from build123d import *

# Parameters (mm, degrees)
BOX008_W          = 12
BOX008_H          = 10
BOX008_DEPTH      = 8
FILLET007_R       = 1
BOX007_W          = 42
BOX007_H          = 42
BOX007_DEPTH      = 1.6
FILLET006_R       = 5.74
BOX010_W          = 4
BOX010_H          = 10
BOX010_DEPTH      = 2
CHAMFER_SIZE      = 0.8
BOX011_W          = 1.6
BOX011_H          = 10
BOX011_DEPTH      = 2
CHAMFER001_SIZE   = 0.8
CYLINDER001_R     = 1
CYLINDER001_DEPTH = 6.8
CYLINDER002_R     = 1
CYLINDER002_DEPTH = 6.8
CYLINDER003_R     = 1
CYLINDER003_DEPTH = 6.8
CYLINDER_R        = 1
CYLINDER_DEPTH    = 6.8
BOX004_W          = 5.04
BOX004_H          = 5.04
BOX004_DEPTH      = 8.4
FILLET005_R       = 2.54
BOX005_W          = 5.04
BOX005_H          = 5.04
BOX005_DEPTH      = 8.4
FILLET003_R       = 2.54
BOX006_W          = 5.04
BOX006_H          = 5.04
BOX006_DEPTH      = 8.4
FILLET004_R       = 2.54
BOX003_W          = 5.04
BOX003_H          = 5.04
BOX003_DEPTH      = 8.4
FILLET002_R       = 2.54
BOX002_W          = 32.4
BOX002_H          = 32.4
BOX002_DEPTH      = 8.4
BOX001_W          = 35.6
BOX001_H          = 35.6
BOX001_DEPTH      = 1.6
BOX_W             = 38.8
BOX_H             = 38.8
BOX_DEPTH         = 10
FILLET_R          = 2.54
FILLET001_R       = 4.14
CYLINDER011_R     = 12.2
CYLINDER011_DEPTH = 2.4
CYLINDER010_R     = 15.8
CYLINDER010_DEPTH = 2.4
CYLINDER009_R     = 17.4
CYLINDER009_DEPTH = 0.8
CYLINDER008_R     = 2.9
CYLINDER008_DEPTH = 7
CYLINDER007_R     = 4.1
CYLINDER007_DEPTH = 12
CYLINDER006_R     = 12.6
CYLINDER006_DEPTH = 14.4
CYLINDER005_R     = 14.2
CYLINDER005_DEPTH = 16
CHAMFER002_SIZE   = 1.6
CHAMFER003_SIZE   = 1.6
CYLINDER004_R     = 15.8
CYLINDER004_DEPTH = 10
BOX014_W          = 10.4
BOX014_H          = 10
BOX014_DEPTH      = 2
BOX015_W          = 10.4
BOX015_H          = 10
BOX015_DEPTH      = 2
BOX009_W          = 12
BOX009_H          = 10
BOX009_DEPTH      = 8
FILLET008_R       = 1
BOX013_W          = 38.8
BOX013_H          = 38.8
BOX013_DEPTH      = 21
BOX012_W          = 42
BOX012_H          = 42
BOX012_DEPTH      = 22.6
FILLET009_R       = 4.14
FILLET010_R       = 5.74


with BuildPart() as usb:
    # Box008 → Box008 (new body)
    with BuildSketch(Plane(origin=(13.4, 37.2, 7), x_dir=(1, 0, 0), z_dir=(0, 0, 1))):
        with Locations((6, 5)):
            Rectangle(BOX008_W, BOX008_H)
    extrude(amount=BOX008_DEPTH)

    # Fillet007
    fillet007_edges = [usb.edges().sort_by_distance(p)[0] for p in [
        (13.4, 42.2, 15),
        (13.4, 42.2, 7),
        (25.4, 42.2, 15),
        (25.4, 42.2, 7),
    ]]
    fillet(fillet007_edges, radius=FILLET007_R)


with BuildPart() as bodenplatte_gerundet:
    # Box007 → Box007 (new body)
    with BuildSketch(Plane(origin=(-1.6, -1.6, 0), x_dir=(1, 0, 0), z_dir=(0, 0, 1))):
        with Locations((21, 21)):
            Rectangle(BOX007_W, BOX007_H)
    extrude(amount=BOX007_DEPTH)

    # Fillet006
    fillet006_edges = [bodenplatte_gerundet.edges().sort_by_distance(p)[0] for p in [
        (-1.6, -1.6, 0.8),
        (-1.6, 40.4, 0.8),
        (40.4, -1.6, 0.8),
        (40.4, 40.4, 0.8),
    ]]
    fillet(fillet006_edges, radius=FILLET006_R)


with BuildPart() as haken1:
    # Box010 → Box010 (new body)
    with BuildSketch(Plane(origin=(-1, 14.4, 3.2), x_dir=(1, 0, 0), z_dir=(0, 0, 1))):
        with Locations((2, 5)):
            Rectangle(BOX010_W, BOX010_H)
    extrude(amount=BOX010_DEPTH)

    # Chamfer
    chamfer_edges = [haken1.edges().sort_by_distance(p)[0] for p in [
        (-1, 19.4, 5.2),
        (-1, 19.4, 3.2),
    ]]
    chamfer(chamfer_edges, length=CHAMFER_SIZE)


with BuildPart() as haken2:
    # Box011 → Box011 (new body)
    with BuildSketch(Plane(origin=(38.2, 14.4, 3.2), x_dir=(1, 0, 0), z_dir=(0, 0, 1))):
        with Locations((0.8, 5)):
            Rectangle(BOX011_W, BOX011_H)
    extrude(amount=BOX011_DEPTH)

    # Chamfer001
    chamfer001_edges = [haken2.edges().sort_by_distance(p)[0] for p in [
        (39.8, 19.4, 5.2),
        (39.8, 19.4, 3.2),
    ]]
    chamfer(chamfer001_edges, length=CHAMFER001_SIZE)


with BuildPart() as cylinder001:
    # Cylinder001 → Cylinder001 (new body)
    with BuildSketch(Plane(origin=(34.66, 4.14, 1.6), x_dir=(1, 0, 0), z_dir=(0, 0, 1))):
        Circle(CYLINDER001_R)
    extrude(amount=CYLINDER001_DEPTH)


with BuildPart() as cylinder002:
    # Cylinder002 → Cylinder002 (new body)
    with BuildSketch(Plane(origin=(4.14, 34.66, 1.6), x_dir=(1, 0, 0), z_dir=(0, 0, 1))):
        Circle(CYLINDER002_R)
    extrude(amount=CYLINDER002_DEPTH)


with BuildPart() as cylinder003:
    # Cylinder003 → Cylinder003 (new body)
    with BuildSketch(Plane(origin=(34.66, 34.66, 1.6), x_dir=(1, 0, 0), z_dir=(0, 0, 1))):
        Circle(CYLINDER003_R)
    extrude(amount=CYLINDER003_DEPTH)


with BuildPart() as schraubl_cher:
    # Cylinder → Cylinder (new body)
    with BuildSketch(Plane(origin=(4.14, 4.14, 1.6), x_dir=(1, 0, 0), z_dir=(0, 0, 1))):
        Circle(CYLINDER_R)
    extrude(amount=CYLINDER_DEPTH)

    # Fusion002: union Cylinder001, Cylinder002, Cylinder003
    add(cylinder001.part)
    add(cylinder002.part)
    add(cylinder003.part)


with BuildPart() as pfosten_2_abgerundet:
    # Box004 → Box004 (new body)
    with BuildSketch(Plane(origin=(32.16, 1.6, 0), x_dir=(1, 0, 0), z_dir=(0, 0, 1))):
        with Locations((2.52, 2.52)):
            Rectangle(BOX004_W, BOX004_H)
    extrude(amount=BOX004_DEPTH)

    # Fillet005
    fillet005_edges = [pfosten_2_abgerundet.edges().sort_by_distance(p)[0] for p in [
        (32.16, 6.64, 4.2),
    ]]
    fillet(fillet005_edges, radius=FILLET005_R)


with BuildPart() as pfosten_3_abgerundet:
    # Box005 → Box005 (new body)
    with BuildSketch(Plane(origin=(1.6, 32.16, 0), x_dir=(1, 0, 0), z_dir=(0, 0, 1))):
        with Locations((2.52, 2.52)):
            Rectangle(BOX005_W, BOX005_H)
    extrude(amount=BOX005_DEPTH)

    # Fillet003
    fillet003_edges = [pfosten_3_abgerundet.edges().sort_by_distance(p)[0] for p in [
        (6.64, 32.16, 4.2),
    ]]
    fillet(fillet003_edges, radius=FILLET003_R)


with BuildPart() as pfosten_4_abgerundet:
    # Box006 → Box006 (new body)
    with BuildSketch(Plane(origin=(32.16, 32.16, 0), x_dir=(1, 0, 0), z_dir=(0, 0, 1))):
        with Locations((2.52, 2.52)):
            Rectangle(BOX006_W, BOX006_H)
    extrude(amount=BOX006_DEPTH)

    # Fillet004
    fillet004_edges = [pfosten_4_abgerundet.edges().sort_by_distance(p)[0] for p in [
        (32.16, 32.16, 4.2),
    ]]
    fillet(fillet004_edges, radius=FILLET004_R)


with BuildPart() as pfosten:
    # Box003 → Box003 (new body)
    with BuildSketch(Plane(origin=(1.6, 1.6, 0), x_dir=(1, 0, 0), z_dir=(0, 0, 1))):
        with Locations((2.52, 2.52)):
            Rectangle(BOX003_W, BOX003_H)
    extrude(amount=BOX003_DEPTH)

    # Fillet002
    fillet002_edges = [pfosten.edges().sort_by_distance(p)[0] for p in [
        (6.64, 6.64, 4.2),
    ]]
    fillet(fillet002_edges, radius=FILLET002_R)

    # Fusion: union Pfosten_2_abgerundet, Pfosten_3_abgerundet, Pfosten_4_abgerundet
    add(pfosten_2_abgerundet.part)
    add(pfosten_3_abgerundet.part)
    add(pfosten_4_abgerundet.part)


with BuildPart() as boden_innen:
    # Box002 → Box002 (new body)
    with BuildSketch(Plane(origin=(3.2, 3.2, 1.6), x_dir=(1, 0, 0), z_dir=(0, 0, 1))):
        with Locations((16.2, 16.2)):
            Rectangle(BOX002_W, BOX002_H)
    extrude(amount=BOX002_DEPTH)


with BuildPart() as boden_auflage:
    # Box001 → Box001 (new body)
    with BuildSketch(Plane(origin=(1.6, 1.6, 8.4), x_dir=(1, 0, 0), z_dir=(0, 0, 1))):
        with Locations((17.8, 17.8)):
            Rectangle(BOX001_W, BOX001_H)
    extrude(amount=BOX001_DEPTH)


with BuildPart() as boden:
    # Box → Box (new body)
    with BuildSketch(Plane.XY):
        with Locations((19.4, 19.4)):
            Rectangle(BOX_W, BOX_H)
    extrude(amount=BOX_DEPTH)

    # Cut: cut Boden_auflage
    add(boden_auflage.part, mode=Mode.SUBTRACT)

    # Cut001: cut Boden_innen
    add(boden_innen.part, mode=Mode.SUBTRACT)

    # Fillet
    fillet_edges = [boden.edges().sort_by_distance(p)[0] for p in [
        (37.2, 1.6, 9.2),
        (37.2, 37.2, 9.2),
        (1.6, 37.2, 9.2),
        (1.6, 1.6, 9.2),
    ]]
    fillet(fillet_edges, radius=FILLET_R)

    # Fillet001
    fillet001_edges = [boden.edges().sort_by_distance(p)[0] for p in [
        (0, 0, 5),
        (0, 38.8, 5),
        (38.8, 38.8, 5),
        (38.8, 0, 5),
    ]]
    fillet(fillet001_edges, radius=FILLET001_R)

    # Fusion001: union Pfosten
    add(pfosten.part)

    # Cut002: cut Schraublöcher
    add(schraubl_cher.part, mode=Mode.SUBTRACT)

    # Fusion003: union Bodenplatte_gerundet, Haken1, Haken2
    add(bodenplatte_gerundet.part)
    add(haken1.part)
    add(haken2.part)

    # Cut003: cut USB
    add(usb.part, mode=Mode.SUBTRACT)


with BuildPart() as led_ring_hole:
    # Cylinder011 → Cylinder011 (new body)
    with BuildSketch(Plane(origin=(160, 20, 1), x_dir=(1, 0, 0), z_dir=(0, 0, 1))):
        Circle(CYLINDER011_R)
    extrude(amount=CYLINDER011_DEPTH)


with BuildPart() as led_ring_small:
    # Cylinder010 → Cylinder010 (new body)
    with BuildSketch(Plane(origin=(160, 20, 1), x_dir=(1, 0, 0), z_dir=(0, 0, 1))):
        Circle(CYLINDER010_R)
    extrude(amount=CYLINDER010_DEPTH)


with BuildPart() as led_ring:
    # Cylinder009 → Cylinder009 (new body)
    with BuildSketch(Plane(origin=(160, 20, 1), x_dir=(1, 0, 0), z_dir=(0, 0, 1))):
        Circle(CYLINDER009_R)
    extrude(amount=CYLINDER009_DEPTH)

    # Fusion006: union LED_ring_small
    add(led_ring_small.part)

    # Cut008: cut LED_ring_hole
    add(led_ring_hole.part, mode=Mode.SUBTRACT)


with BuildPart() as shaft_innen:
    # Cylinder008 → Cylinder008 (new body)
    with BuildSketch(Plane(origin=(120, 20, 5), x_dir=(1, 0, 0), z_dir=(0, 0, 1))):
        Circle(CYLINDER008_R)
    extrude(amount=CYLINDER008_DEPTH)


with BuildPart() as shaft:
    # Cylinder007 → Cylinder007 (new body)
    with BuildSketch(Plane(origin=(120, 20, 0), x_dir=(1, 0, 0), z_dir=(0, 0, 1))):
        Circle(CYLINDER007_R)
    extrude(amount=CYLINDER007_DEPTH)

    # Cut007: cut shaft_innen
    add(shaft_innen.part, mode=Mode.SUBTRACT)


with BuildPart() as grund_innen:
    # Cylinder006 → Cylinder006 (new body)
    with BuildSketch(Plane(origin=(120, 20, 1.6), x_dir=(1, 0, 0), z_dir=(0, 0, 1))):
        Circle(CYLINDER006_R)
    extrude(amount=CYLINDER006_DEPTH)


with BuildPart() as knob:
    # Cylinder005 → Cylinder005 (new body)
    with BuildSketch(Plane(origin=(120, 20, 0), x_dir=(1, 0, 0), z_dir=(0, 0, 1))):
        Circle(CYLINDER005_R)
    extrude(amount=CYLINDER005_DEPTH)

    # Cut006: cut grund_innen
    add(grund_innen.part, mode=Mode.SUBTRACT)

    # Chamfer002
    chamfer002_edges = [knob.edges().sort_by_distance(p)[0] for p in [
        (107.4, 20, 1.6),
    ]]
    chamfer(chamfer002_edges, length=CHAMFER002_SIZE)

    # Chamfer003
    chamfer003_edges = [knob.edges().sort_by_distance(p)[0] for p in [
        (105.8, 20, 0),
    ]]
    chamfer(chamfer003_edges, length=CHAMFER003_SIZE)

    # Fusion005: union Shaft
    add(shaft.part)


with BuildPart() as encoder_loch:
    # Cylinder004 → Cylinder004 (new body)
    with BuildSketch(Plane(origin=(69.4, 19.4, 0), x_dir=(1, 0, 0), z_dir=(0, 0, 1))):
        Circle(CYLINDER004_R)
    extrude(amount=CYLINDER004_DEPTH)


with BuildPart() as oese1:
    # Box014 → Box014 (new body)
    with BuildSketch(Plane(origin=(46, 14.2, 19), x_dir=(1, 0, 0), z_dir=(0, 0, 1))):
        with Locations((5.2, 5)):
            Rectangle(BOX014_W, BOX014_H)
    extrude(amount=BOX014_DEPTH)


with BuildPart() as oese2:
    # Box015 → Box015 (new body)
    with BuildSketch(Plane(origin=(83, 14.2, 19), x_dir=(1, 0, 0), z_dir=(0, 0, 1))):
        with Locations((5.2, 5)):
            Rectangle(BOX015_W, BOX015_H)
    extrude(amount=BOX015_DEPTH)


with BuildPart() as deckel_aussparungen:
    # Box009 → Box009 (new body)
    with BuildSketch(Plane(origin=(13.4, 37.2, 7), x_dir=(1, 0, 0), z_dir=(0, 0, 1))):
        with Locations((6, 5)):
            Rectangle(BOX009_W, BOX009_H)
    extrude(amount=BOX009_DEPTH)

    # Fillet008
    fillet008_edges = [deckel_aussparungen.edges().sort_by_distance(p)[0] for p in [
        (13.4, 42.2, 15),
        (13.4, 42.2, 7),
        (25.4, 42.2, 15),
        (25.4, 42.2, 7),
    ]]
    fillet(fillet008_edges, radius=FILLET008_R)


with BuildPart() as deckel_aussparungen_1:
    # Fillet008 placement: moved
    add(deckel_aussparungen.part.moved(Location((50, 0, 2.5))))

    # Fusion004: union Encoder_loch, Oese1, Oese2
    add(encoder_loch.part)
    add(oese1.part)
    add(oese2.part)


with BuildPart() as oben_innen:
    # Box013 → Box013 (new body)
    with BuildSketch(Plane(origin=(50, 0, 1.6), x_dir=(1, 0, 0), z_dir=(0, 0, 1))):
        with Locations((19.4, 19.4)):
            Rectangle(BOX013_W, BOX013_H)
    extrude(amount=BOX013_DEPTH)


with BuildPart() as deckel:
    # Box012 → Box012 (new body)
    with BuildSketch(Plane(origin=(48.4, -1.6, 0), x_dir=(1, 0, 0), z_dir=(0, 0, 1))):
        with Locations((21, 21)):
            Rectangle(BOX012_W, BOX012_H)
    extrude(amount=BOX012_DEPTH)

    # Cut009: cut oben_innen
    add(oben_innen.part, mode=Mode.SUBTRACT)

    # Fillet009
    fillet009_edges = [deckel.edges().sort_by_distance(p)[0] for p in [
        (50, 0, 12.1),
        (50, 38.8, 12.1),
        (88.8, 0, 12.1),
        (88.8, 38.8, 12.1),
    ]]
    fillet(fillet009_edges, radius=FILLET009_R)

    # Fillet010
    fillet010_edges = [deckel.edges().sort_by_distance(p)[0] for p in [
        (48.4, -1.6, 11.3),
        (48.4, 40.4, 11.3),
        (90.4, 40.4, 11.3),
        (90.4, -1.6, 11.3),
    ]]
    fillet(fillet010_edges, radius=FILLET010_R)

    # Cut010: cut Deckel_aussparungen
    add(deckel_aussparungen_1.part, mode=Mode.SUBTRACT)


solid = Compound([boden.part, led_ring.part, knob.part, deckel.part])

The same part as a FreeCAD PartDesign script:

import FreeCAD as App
import Part
import Sketcher
from FreeCAD import Vector


def edges_at(feature, points):
    """Names of the edges that pass closest to the given points."""
    edges = feature.Shape.Edges
    near = lambda p: min(range(len(edges)), key=lambda i: edges[i].distToShape(Part.Vertex(*p))[0])
    return sorted({f"Edge{near(p) + 1}" for p in points})


def add_polygon(sketch, points):
    """Adds a closed chain of lines whose ends are joined by coincident constraints."""
    first, n = sketch.GeometryCount, len(points)
    for a, b in zip(points, points[1:] + points[:1]):
        sketch.addGeometry(Part.LineSegment(App.Vector(*a, 0), App.Vector(*b, 0)), False)
    for i in range(n):
        sketch.addConstraint(Sketcher.Constraint("Coincident", first + i, 2, first + (i + 1) % n, 1))

doc = App.newDocument("Part")
body = doc.addObject("PartDesign::Body", "Body")

# Sketch on XY plane
sketch1 = body.newObject("Sketcher::SketchObject", "Sketch")
sketch1.AttachmentSupport = (doc.getObject("XY_Plane"), [""])
sketch1.MapMode = "FlatFace"
sketch1.AttachmentOffset = App.Placement(Vector(0, 0, 7), App.Rotation())
add_polygon(sketch1, [(13, 47), (13, 37), (25, 37), (25, 47)])  # lines 0-3
sketch1.addConstraint(Sketcher.Constraint("Vertical", 0))
sketch1.addConstraint(Sketcher.Constraint("Horizontal", 1))
sketch1.addConstraint(Sketcher.Constraint("Vertical", 2))
sketch1.addConstraint(Sketcher.Constraint("Horizontal", 3))
sketch1.addConstraint(Sketcher.Constraint("DistanceX", 1, 1, 1, 2, 12.0))
sketch1.addConstraint(Sketcher.Constraint("DistanceY", 0, 2, 0, 1, 10.0))
sketch1.addConstraint(Sketcher.Constraint("DistanceX", -1, 1, 0, 2, 13.4))
sketch1.addConstraint(Sketcher.Constraint("DistanceY", -1, 1, 0, 2, 37.2))
pad1 = body.newObject("PartDesign::Pad", "Pad")
pad1.Profile = sketch1
pad1.Length = 8
doc.recompute()

fillet = body.newObject("PartDesign::Fillet", "Fillet")
fillet.Base = (pad1, edges_at(pad1, [
    (13.4, 42.2, 15),
    (13.4, 42.2, 7),
    (25.4, 42.2, 15),
    (25.4, 42.2, 7),
]))
fillet.Radius = 1
body2 = doc.addObject("PartDesign::Body", "Body001")

# Sketch on XY plane
sketch2 = body2.newObject("Sketcher::SketchObject", "Sketch001")
sketch2.AttachmentSupport = (doc.getObject("XY_Plane001"), [""])
sketch2.MapMode = "FlatFace"
add_polygon(sketch2, [(-2, 40), (-2, -2), (40, -2), (40, 40)])  # lines 0-3
sketch2.addConstraint(Sketcher.Constraint("Vertical", 0))
sketch2.addConstraint(Sketcher.Constraint("Horizontal", 1))
sketch2.addConstraint(Sketcher.Constraint("Vertical", 2))
sketch2.addConstraint(Sketcher.Constraint("Horizontal", 3))
sketch2.addConstraint(Sketcher.Constraint("Equal", 3, 0))
sketch2.addConstraint(Sketcher.Constraint("DistanceX", 1, 1, 1, 2, 42.0))
sketch2.addConstraint(Sketcher.Constraint("DistanceX", 0, 2, -1, 1, 1.6))
sketch2.addConstraint(Sketcher.Constraint("DistanceY", 0, 2, -1, 1, 1.6))
pad2 = body2.newObject("PartDesign::Pad", "Pad001")
pad2.Profile = sketch2
pad2.Length = 1.6
doc.recompute()

fillet2 = body2.newObject("PartDesign::Fillet", "Fillet001")
fillet2.Base = (pad2, edges_at(pad2, [
    (-1.6, -1.6, 0.8),
    (-1.6, 40.4, 0.8),
    (40.4, -1.6, 0.8),
    (40.4, 40.4, 0.8),
]))
fillet2.Radius = 5.74
body3 = doc.addObject("PartDesign::Body", "Body002")

# Sketch on XY plane
sketch3 = body3.newObject("Sketcher::SketchObject", "Sketch002")
sketch3.AttachmentSupport = (doc.getObject("XY_Plane002"), [""])
sketch3.MapMode = "FlatFace"
sketch3.AttachmentOffset = App.Placement(Vector(0, 0, 3.2), App.Rotation())
add_polygon(sketch3, [(-1, 24.4), (-1, 14.4), (3, 14.4), (3, 24.4)])  # lines 0-3
sketch3.addConstraint(Sketcher.Constraint("Vertical", 0))
sketch3.addConstraint(Sketcher.Constraint("Horizontal", 1))
sketch3.addConstraint(Sketcher.Constraint("Vertical", 2))
sketch3.addConstraint(Sketcher.Constraint("Horizontal", 3))
sketch3.addConstraint(Sketcher.Constraint("DistanceX", 1, 1, 1, 2, 4.0))
sketch3.addConstraint(Sketcher.Constraint("DistanceY", 0, 2, 0, 1, 10.0))
sketch3.addConstraint(Sketcher.Constraint("DistanceX", 0, 2, -1, 1, 1.0))
sketch3.addConstraint(Sketcher.Constraint("DistanceY", -1, 1, 0, 2, 14.4))
pad3 = body3.newObject("PartDesign::Pad", "Pad002")
pad3.Profile = sketch3
pad3.Length = 2
doc.recompute()

chamfer = body3.newObject("PartDesign::Chamfer", "Chamfer")
chamfer.Base = (pad3, edges_at(pad3, [(-1, 19.4, 5.2), (-1, 19.4, 3.2)]))
chamfer.Size = 0.8
body4 = doc.addObject("PartDesign::Body", "Body003")

# Sketch on XY plane
sketch4 = body4.newObject("Sketcher::SketchObject", "Sketch003")
sketch4.AttachmentSupport = (doc.getObject("XY_Plane003"), [""])
sketch4.MapMode = "FlatFace"
sketch4.AttachmentOffset = App.Placement(Vector(0, 0, 3.2), App.Rotation())
add_polygon(sketch4, [(38.2, 24.4), (38.2, 14.4), (39.8, 14.4), (39.8, 24.4)])  # lines 0-3
sketch4.addConstraint(Sketcher.Constraint("Vertical", 0))
sketch4.addConstraint(Sketcher.Constraint("Horizontal", 1))
sketch4.addConstraint(Sketcher.Constraint("Vertical", 2))
sketch4.addConstraint(Sketcher.Constraint("Horizontal", 3))
sketch4.addConstraint(Sketcher.Constraint("DistanceY", 0, 2, 0, 1, 10.0))
sketch4.addConstraint(Sketcher.Constraint("DistanceX", 1, 1, 1, 2, 1.6))
sketch4.addConstraint(Sketcher.Constraint("DistanceX", -1, 1, 0, 2, 38.2))
sketch4.addConstraint(Sketcher.Constraint("DistanceY", -1, 1, 0, 2, 14.4))
pad4 = body4.newObject("PartDesign::Pad", "Pad003")
pad4.Profile = sketch4
pad4.Length = 2
doc.recompute()

chamfer2 = body4.newObject("PartDesign::Chamfer", "Chamfer001")
chamfer2.Base = (pad4, edges_at(pad4, [(39.8, 19.4, 5.2), (39.8, 19.4, 3.2)]))
chamfer2.Size = 0.8
body5 = doc.addObject("PartDesign::Body", "Body004")

# Sketch on XY plane
sketch5 = body5.newObject("Sketcher::SketchObject", "Sketch004")
sketch5.AttachmentSupport = (doc.getObject("XY_Plane004"), [""])
sketch5.MapMode = "FlatFace"
sketch5.AttachmentOffset = App.Placement(Vector(0, 0, 1.6), App.Rotation())
sketch5.addGeometry(Part.Circle(Vector(34.7, 4.1, 0), Vector(0, 0, 1), 1), False)
sketch5.addConstraint(Sketcher.Constraint("Diameter", 0, 2.0))
sketch5.addConstraint(Sketcher.Constraint("DistanceX", -1, 1, 0, 3, 34.66))
sketch5.addConstraint(Sketcher.Constraint("DistanceY", -1, 1, 0, 3, 4.14))
pad5 = body5.newObject("PartDesign::Pad", "Pad004")
pad5.Profile = sketch5
pad5.Length = 6.8
body6 = doc.addObject("PartDesign::Body", "Body005")

# Sketch on XY plane
sketch6 = body6.newObject("Sketcher::SketchObject", "Sketch005")
sketch6.AttachmentSupport = (doc.getObject("XY_Plane005"), [""])
sketch6.MapMode = "FlatFace"
sketch6.AttachmentOffset = App.Placement(Vector(0, 0, 1.6), App.Rotation())
sketch6.addGeometry(Part.Circle(Vector(4.1, 34.7, 0), Vector(0, 0, 1), 1), False)
sketch6.addConstraint(Sketcher.Constraint("Diameter", 0, 2.0))
sketch6.addConstraint(Sketcher.Constraint("DistanceX", -1, 1, 0, 3, 4.14))
sketch6.addConstraint(Sketcher.Constraint("DistanceY", -1, 1, 0, 3, 34.66))
pad6 = body6.newObject("PartDesign::Pad", "Pad005")
pad6.Profile = sketch6
pad6.Length = 6.8
body7 = doc.addObject("PartDesign::Body", "Body006")

# Sketch on XY plane
sketch7 = body7.newObject("Sketcher::SketchObject", "Sketch006")
sketch7.AttachmentSupport = (doc.getObject("XY_Plane006"), [""])
sketch7.MapMode = "FlatFace"
sketch7.AttachmentOffset = App.Placement(Vector(0, 0, 1.6), App.Rotation())
sketch7.addGeometry(Part.Circle(Vector(34.7, 34.7, 0), Vector(0, 0, 1), 1), False)
sketch7.addConstraint(Sketcher.Constraint("Diameter", 0, 2.0))
sketch7.addConstraint(Sketcher.Constraint("DistanceX", -1, 1, 0, 3, 34.66))
sketch7.addConstraint(Sketcher.Constraint("DistanceY", -1, 1, 0, 3, 34.66))
pad7 = body7.newObject("PartDesign::Pad", "Pad006")
pad7.Profile = sketch7
pad7.Length = 6.8
body8 = doc.addObject("PartDesign::Body", "Body007")
body8.AllowCompound = True

# Sketch on XY plane
sketch8 = body8.newObject("Sketcher::SketchObject", "Sketch007")
sketch8.AttachmentSupport = (doc.getObject("XY_Plane007"), [""])
sketch8.MapMode = "FlatFace"
sketch8.AttachmentOffset = App.Placement(Vector(0, 0, 1.6), App.Rotation())
sketch8.addGeometry(Part.Circle(Vector(4.1, 4.1, 0), Vector(0, 0, 1), 1), False)
sketch8.addConstraint(Sketcher.Constraint("Diameter", 0, 2.0))
sketch8.addConstraint(Sketcher.Constraint("DistanceX", -1, 1, 0, 3, 4.14))
sketch8.addConstraint(Sketcher.Constraint("DistanceY", -1, 1, 0, 3, 4.14))
pad8 = body8.newObject("PartDesign::Pad", "Pad007")
pad8.Profile = sketch8
pad8.Length = 6.8
doc.recompute()

boolean = body8.newObject("PartDesign::Boolean", "Boolean")
boolean.Type = "Fuse"
boolean.addObjects([body5])
doc.recompute()

boolean2 = body8.newObject("PartDesign::Boolean", "Boolean001")
boolean2.Type = "Fuse"
boolean2.addObjects([body6])
doc.recompute()

boolean3 = body8.newObject("PartDesign::Boolean", "Boolean002")
boolean3.Type = "Fuse"
boolean3.addObjects([body7])
body9 = doc.addObject("PartDesign::Body", "Body008")

# Sketch on XY plane
sketch9 = body9.newObject("Sketcher::SketchObject", "Sketch008")
sketch9.AttachmentSupport = (doc.getObject("XY_Plane008"), [""])
sketch9.MapMode = "FlatFace"
add_polygon(sketch9, [(32, 7), (32, 2), (37, 2), (37, 7)])  # lines 0-3
sketch9.addConstraint(Sketcher.Constraint("Vertical", 0))
sketch9.addConstraint(Sketcher.Constraint("Horizontal", 1))
sketch9.addConstraint(Sketcher.Constraint("Vertical", 2))
sketch9.addConstraint(Sketcher.Constraint("Horizontal", 3))
sketch9.addConstraint(Sketcher.Constraint("Equal", 3, 0))
sketch9.addConstraint(Sketcher.Constraint("DistanceX", 1, 1, 1, 2, 5.04))
sketch9.addConstraint(Sketcher.Constraint("DistanceY", -1, 1, 0, 2, 1.6))
sketch9.addConstraint(Sketcher.Constraint("DistanceX", -1, 1, 1, 2, 37.2))
pad9 = body9.newObject("PartDesign::Pad", "Pad008")
pad9.Profile = sketch9
pad9.Length = 8.4
doc.recompute()

fillet3 = body9.newObject("PartDesign::Fillet", "Fillet002")
fillet3.Base = (pad9, edges_at(pad9, [(32.16, 6.64, 4.2)]))
fillet3.Radius = 2.54
body10 = doc.addObject("PartDesign::Body", "Body009")

# Sketch on XY plane
sketch10 = body10.newObject("Sketcher::SketchObject", "Sketch009")
sketch10.AttachmentSupport = (doc.getObject("XY_Plane009"), [""])
sketch10.MapMode = "FlatFace"
add_polygon(sketch10, [(2, 37), (2, 32), (7, 32), (7, 37)])  # lines 0-3
sketch10.addConstraint(Sketcher.Constraint("Vertical", 0))
sketch10.addConstraint(Sketcher.Constraint("Horizontal", 1))
sketch10.addConstraint(Sketcher.Constraint("Vertical", 2))
sketch10.addConstraint(Sketcher.Constraint("Horizontal", 3))
sketch10.addConstraint(Sketcher.Constraint("Equal", 3, 0))
sketch10.addConstraint(Sketcher.Constraint("DistanceX", 1, 1, 1, 2, 5.04))
sketch10.addConstraint(Sketcher.Constraint("DistanceX", -1, 1, 0, 2, 1.6))
sketch10.addConstraint(Sketcher.Constraint("DistanceY", -1, 1, 2, 2, 37.2))
pad10 = body10.newObject("PartDesign::Pad", "Pad009")
pad10.Profile = sketch10
pad10.Length = 8.4
doc.recompute()

fillet4 = body10.newObject("PartDesign::Fillet", "Fillet003")
fillet4.Base = (pad10, edges_at(pad10, [(6.64, 32.16, 4.2)]))
fillet4.Radius = 2.54
body11 = doc.addObject("PartDesign::Body", "Body010")

# Sketch on XY plane
sketch11 = body11.newObject("Sketcher::SketchObject", "Sketch010")
sketch11.AttachmentSupport = (doc.getObject("XY_Plane010"), [""])
sketch11.MapMode = "FlatFace"
add_polygon(sketch11, [(32, 37), (32, 32), (37, 32), (37, 37)])  # lines 0-3
sketch11.addConstraint(Sketcher.Constraint("Vertical", 0))
sketch11.addConstraint(Sketcher.Constraint("Horizontal", 1))
sketch11.addConstraint(Sketcher.Constraint("Vertical", 2))
sketch11.addConstraint(Sketcher.Constraint("Horizontal", 3))
sketch11.addConstraint(Sketcher.Constraint("Equal", 3, 0))
sketch11.addConstraint(Sketcher.Constraint("DistanceX", 1, 1, 1, 2, 5.04))
sketch11.addConstraint(Sketcher.Constraint("DistanceX", -1, 1, 1, 2, 37.2))
sketch11.addConstraint(Sketcher.Constraint("DistanceY", -1, 1, 2, 2, 37.2))
pad11 = body11.newObject("PartDesign::Pad", "Pad010")
pad11.Profile = sketch11
pad11.Length = 8.4
doc.recompute()

fillet5 = body11.newObject("PartDesign::Fillet", "Fillet004")
fillet5.Base = (pad11, edges_at(pad11, [(32.16, 32.16, 4.2)]))
fillet5.Radius = 2.54
body12 = doc.addObject("PartDesign::Body", "Body011")
body12.AllowCompound = True

# Sketch on XY plane
sketch12 = body12.newObject("Sketcher::SketchObject", "Sketch011")
sketch12.AttachmentSupport = (doc.getObject("XY_Plane011"), [""])
sketch12.MapMode = "FlatFace"
add_polygon(sketch12, [(2, 7), (2, 2), (7, 2), (7, 7)])  # lines 0-3
sketch12.addConstraint(Sketcher.Constraint("Vertical", 0))
sketch12.addConstraint(Sketcher.Constraint("Horizontal", 1))
sketch12.addConstraint(Sketcher.Constraint("Vertical", 2))
sketch12.addConstraint(Sketcher.Constraint("Horizontal", 3))
sketch12.addConstraint(Sketcher.Constraint("Equal", 3, 0))
sketch12.addConstraint(Sketcher.Constraint("DistanceX", 1, 1, 1, 2, 5.04))
sketch12.addConstraint(Sketcher.Constraint("DistanceX", -1, 1, 0, 2, 1.6))
sketch12.addConstraint(Sketcher.Constraint("DistanceY", -1, 1, 0, 2, 1.6))
pad12 = body12.newObject("PartDesign::Pad", "Pad011")
pad12.Profile = sketch12
pad12.Length = 8.4
doc.recompute()

fillet6 = body12.newObject("PartDesign::Fillet", "Fillet005")
fillet6.Base = (pad12, edges_at(pad12, [(6.64, 6.64, 4.2)]))
fillet6.Radius = 2.54
doc.recompute()

boolean4 = body12.newObject("PartDesign::Boolean", "Boolean003")
boolean4.Type = "Fuse"
boolean4.addObjects([body9])
doc.recompute()

boolean5 = body12.newObject("PartDesign::Boolean", "Boolean004")
boolean5.Type = "Fuse"
boolean5.addObjects([body10])
doc.recompute()

boolean6 = body12.newObject("PartDesign::Boolean", "Boolean005")
boolean6.Type = "Fuse"
boolean6.addObjects([body11])
body13 = doc.addObject("PartDesign::Body", "Body012")

# Sketch on XY plane
sketch13 = body13.newObject("Sketcher::SketchObject", "Sketch012")
sketch13.AttachmentSupport = (doc.getObject("XY_Plane012"), [""])
sketch13.MapMode = "FlatFace"
sketch13.AttachmentOffset = App.Placement(Vector(0, 0, 1.6), App.Rotation())
add_polygon(sketch13, [(3, 36), (3, 3), (36, 3), (36, 36)])  # lines 0-3
sketch13.addConstraint(Sketcher.Constraint("Vertical", 0))
sketch13.addConstraint(Sketcher.Constraint("Horizontal", 1))
sketch13.addConstraint(Sketcher.Constraint("Vertical", 2))
sketch13.addConstraint(Sketcher.Constraint("Horizontal", 3))
sketch13.addConstraint(Sketcher.Constraint("Equal", 3, 0))
sketch13.addConstraint(Sketcher.Constraint("DistanceX", 1, 1, 1, 2, 32.4))
sketch13.addConstraint(Sketcher.Constraint("DistanceX", -1, 1, 0, 2, 3.2))
sketch13.addConstraint(Sketcher.Constraint("DistanceY", -1, 1, 0, 2, 3.2))
pad13 = body13.newObject("PartDesign::Pad", "Pad012")
pad13.Profile = sketch13
pad13.Length = 8.4
body14 = doc.addObject("PartDesign::Body", "Body013")

# Sketch on XY plane
sketch14 = body14.newObject("Sketcher::SketchObject", "Sketch013")
sketch14.AttachmentSupport = (doc.getObject("XY_Plane013"), [""])
sketch14.MapMode = "FlatFace"
sketch14.AttachmentOffset = App.Placement(Vector(0, 0, 8.4), App.Rotation())
add_polygon(sketch14, [(2, 37), (2, 2), (37, 2), (37, 37)])  # lines 0-3
sketch14.addConstraint(Sketcher.Constraint("Vertical", 0))
sketch14.addConstraint(Sketcher.Constraint("Horizontal", 1))
sketch14.addConstraint(Sketcher.Constraint("Vertical", 2))
sketch14.addConstraint(Sketcher.Constraint("Horizontal", 3))
sketch14.addConstraint(Sketcher.Constraint("Equal", 3, 0))
sketch14.addConstraint(Sketcher.Constraint("DistanceX", 1, 1, 1, 2, 35.6))
sketch14.addConstraint(Sketcher.Constraint("DistanceX", -1, 1, 0, 2, 1.6))
sketch14.addConstraint(Sketcher.Constraint("DistanceY", -1, 1, 0, 2, 1.6))
pad14 = body14.newObject("PartDesign::Pad", "Pad013")
pad14.Profile = sketch14
pad14.Length = 1.6
body15 = doc.addObject("PartDesign::Body", "Body014")

# Sketch on XY plane
sketch15 = body15.newObject("Sketcher::SketchObject", "Sketch014")
sketch15.AttachmentSupport = (doc.getObject("XY_Plane014"), [""])
sketch15.MapMode = "FlatFace"
add_polygon(sketch15, [(0, 39), (0, 0), (39, 0), (39, 39)])  # lines 0-3
sketch15.addConstraint(Sketcher.Constraint("Vertical", 0))
sketch15.addConstraint(Sketcher.Constraint("Horizontal", 1))
sketch15.addConstraint(Sketcher.Constraint("Vertical", 2))
sketch15.addConstraint(Sketcher.Constraint("Horizontal", 3))
sketch15.addConstraint(Sketcher.Constraint("Coincident", 0, 2, -1, 1))
sketch15.addConstraint(Sketcher.Constraint("Equal", 3, 0))
sketch15.addConstraint(Sketcher.Constraint("DistanceX", 1, 1, 1, 2, 38.8))
pad15 = body15.newObject("PartDesign::Pad", "Pad014")
pad15.Profile = sketch15
pad15.Length = 10
doc.recompute()

boolean7 = body15.newObject("PartDesign::Boolean", "Boolean006")
boolean7.Type = "Cut"
boolean7.addObjects([body14])
doc.recompute()

boolean8 = body15.newObject("PartDesign::Boolean", "Boolean007")
boolean8.Type = "Cut"
boolean8.addObjects([body13])
doc.recompute()

fillet7 = body15.newObject("PartDesign::Fillet", "Fillet006")
fillet7.Base = (boolean8, edges_at(boolean8, [
    (37.2, 1.6, 9.2),
    (37.2, 37.2, 9.2),
    (1.6, 37.2, 9.2),
    (1.6, 1.6, 9.2),
]))
fillet7.Radius = 2.54
doc.recompute()

fillet8 = body15.newObject("PartDesign::Fillet", "Fillet007")
fillet8.Base = (fillet7, edges_at(fillet7, [
    (0, 0, 5),
    (0, 38.8, 5),
    (38.8, 38.8, 5),
    (38.8, 0, 5),
]))
fillet8.Radius = 4.14
doc.recompute()

boolean9 = body15.newObject("PartDesign::Boolean", "Boolean008")
boolean9.Type = "Fuse"
boolean9.addObjects([body12])
doc.recompute()

boolean10 = body15.newObject("PartDesign::Boolean", "Boolean009")
boolean10.Type = "Cut"
boolean10.addObjects([body8])
doc.recompute()

boolean11 = body15.newObject("PartDesign::Boolean", "Boolean010")
boolean11.Type = "Fuse"
boolean11.addObjects([body2])
doc.recompute()

boolean12 = body15.newObject("PartDesign::Boolean", "Boolean011")
boolean12.Type = "Fuse"
boolean12.addObjects([body3])
doc.recompute()

boolean13 = body15.newObject("PartDesign::Boolean", "Boolean012")
boolean13.Type = "Fuse"
boolean13.addObjects([body4])
doc.recompute()

boolean14 = body15.newObject("PartDesign::Boolean", "Boolean013")
boolean14.Type = "Cut"
boolean14.addObjects([body])
body16 = doc.addObject("PartDesign::Body", "Body015")

# Sketch on XY plane
sketch16 = body16.newObject("Sketcher::SketchObject", "Sketch015")
sketch16.AttachmentSupport = (doc.getObject("XY_Plane015"), [""])
sketch16.MapMode = "FlatFace"
sketch16.AttachmentOffset = App.Placement(Vector(0, 0, 1), App.Rotation())
sketch16.addGeometry(Part.Circle(Vector(160, 20, 0), Vector(0, 0, 1), 12), False)
sketch16.addConstraint(Sketcher.Constraint("Diameter", 0, 24.4))
sketch16.addConstraint(Sketcher.Constraint("DistanceX", -1, 1, 0, 3, 160.0))
sketch16.addConstraint(Sketcher.Constraint("DistanceY", -1, 1, 0, 3, 20.0))
pad16 = body16.newObject("PartDesign::Pad", "Pad015")
pad16.Profile = sketch16
pad16.Length = 2.4
body17 = doc.addObject("PartDesign::Body", "Body016")

# Sketch on XY plane
sketch17 = body17.newObject("Sketcher::SketchObject", "Sketch016")
sketch17.AttachmentSupport = (doc.getObject("XY_Plane016"), [""])
sketch17.MapMode = "FlatFace"
sketch17.AttachmentOffset = App.Placement(Vector(0, 0, 1), App.Rotation())
sketch17.addGeometry(Part.Circle(Vector(160, 20, 0), Vector(0, 0, 1), 16), False)
sketch17.addConstraint(Sketcher.Constraint("Diameter", 0, 31.6))
sketch17.addConstraint(Sketcher.Constraint("DistanceX", -1, 1, 0, 3, 160.0))
sketch17.addConstraint(Sketcher.Constraint("DistanceY", -1, 1, 0, 3, 20.0))
pad17 = body17.newObject("PartDesign::Pad", "Pad016")
pad17.Profile = sketch17
pad17.Length = 2.4
body18 = doc.addObject("PartDesign::Body", "Body017")

# Sketch on XY plane
sketch18 = body18.newObject("Sketcher::SketchObject", "Sketch017")
sketch18.AttachmentSupport = (doc.getObject("XY_Plane017"), [""])
sketch18.MapMode = "FlatFace"
sketch18.AttachmentOffset = App.Placement(Vector(0, 0, 1), App.Rotation())
sketch18.addGeometry(Part.Circle(Vector(160, 20, 0), Vector(0, 0, 1), 17), False)
sketch18.addConstraint(Sketcher.Constraint("Diameter", 0, 34.8))
sketch18.addConstraint(Sketcher.Constraint("DistanceX", -1, 1, 0, 3, 160.0))
sketch18.addConstraint(Sketcher.Constraint("DistanceY", -1, 1, 0, 3, 20.0))
pad18 = body18.newObject("PartDesign::Pad", "Pad017")
pad18.Profile = sketch18
pad18.Length = 0.8
doc.recompute()

boolean15 = body18.newObject("PartDesign::Boolean", "Boolean014")
boolean15.Type = "Fuse"
boolean15.addObjects([body17])
doc.recompute()

boolean16 = body18.newObject("PartDesign::Boolean", "Boolean015")
boolean16.Type = "Cut"
boolean16.addObjects([body16])
body19 = doc.addObject("PartDesign::Body", "Body018")

# Sketch on XY plane
sketch19 = body19.newObject("Sketcher::SketchObject", "Sketch018")
sketch19.AttachmentSupport = (doc.getObject("XY_Plane018"), [""])
sketch19.MapMode = "FlatFace"
sketch19.AttachmentOffset = App.Placement(Vector(0, 0, 5), App.Rotation())
sketch19.addGeometry(Part.Circle(Vector(120, 20, 0), Vector(0, 0, 1), 2.9), False)
sketch19.addConstraint(Sketcher.Constraint("Diameter", 0, 5.8))
sketch19.addConstraint(Sketcher.Constraint("DistanceX", -1, 1, 0, 3, 120.0))
sketch19.addConstraint(Sketcher.Constraint("DistanceY", -1, 1, 0, 3, 20.0))
pad19 = body19.newObject("PartDesign::Pad", "Pad018")
pad19.Profile = sketch19
pad19.Length = 7
body20 = doc.addObject("PartDesign::Body", "Body019")

# Sketch on XY plane
sketch20 = body20.newObject("Sketcher::SketchObject", "Sketch019")
sketch20.AttachmentSupport = (doc.getObject("XY_Plane019"), [""])
sketch20.MapMode = "FlatFace"
sketch20.addGeometry(Part.Circle(Vector(120, 20, 0), Vector(0, 0, 1), 4.1), False)
sketch20.addConstraint(Sketcher.Constraint("Diameter", 0, 8.2))
sketch20.addConstraint(Sketcher.Constraint("DistanceX", -1, 1, 0, 3, 120.0))
sketch20.addConstraint(Sketcher.Constraint("DistanceY", -1, 1, 0, 3, 20.0))
pad20 = body20.newObject("PartDesign::Pad", "Pad019")
pad20.Profile = sketch20
pad20.Length = 12
doc.recompute()

boolean17 = body20.newObject("PartDesign::Boolean", "Boolean016")
boolean17.Type = "Cut"
boolean17.addObjects([body19])
body21 = doc.addObject("PartDesign::Body", "Body020")

# Sketch on XY plane
sketch21 = body21.newObject("Sketcher::SketchObject", "Sketch020")
sketch21.AttachmentSupport = (doc.getObject("XY_Plane020"), [""])
sketch21.MapMode = "FlatFace"
sketch21.AttachmentOffset = App.Placement(Vector(0, 0, 1.6), App.Rotation())
sketch21.addGeometry(Part.Circle(Vector(120, 20, 0), Vector(0, 0, 1), 13), False)
sketch21.addConstraint(Sketcher.Constraint("Diameter", 0, 25.2))
sketch21.addConstraint(Sketcher.Constraint("DistanceX", -1, 1, 0, 3, 120.0))
sketch21.addConstraint(Sketcher.Constraint("DistanceY", -1, 1, 0, 3, 20.0))
pad21 = body21.newObject("PartDesign::Pad", "Pad020")
pad21.Profile = sketch21
pad21.Length = 14.4
body22 = doc.addObject("PartDesign::Body", "Body021")

# Sketch on XY plane
sketch22 = body22.newObject("Sketcher::SketchObject", "Sketch021")
sketch22.AttachmentSupport = (doc.getObject("XY_Plane021"), [""])
sketch22.MapMode = "FlatFace"
sketch22.addGeometry(Part.Circle(Vector(120, 20, 0), Vector(0, 0, 1), 14), False)
sketch22.addConstraint(Sketcher.Constraint("Diameter", 0, 28.4))
sketch22.addConstraint(Sketcher.Constraint("DistanceX", -1, 1, 0, 3, 120.0))
sketch22.addConstraint(Sketcher.Constraint("DistanceY", -1, 1, 0, 3, 20.0))
pad22 = body22.newObject("PartDesign::Pad", "Pad021")
pad22.Profile = sketch22
pad22.Length = 16
doc.recompute()

boolean18 = body22.newObject("PartDesign::Boolean", "Boolean017")
boolean18.Type = "Cut"
boolean18.addObjects([body21])
doc.recompute()

chamfer3 = body22.newObject("PartDesign::Chamfer", "Chamfer002")
chamfer3.Base = (boolean18, edges_at(boolean18, [(107.4, 20, 1.6)]))
chamfer3.Size = 1.6
doc.recompute()

chamfer4 = body22.newObject("PartDesign::Chamfer", "Chamfer003")
chamfer4.Base = (chamfer3, edges_at(chamfer3, [(105.8, 20, 0)]))
chamfer4.Size = 1.6
doc.recompute()

boolean19 = body22.newObject("PartDesign::Boolean", "Boolean018")
boolean19.Type = "Fuse"
boolean19.addObjects([body20])
body23 = doc.addObject("PartDesign::Body", "Body022")

# Sketch on XY plane
sketch23 = body23.newObject("Sketcher::SketchObject", "Sketch022")
sketch23.AttachmentSupport = (doc.getObject("XY_Plane022"), [""])
sketch23.MapMode = "FlatFace"
sketch23.addGeometry(Part.Circle(Vector(69, 19, 0), Vector(0, 0, 1), 16), False)
sketch23.addConstraint(Sketcher.Constraint("Diameter", 0, 31.6))
sketch23.addConstraint(Sketcher.Constraint("DistanceX", -1, 1, 0, 3, 69.4))
sketch23.addConstraint(Sketcher.Constraint("DistanceY", -1, 1, 0, 3, 19.4))
pad23 = body23.newObject("PartDesign::Pad", "Pad022")
pad23.Profile = sketch23
pad23.Length = 10
body24 = doc.addObject("PartDesign::Body", "Body023")

# Sketch on XY plane
sketch24 = body24.newObject("Sketcher::SketchObject", "Sketch023")
sketch24.AttachmentSupport = (doc.getObject("XY_Plane023"), [""])
sketch24.MapMode = "FlatFace"
sketch24.AttachmentOffset = App.Placement(Vector(0, 0, 19), App.Rotation())
add_polygon(sketch24, [(46, 24), (46, 14), (56, 14), (56, 24)])  # lines 0-3
sketch24.addConstraint(Sketcher.Constraint("Vertical", 0))
sketch24.addConstraint(Sketcher.Constraint("Horizontal", 1))
sketch24.addConstraint(Sketcher.Constraint("Vertical", 2))
sketch24.addConstraint(Sketcher.Constraint("Horizontal", 3))
sketch24.addConstraint(Sketcher.Constraint("DistanceY", 0, 2, 0, 1, 10.0))
sketch24.addConstraint(Sketcher.Constraint("DistanceX", 1, 1, 1, 2, 10.4))
sketch24.addConstraint(Sketcher.Constraint("DistanceX", -1, 1, 0, 2, 46.0))
sketch24.addConstraint(Sketcher.Constraint("DistanceY", -1, 1, 0, 2, 14.2))
pad24 = body24.newObject("PartDesign::Pad", "Pad023")
pad24.Profile = sketch24
pad24.Length = 2
body25 = doc.addObject("PartDesign::Body", "Body024")

# Sketch on XY plane
sketch25 = body25.newObject("Sketcher::SketchObject", "Sketch024")
sketch25.AttachmentSupport = (doc.getObject("XY_Plane024"), [""])
sketch25.MapMode = "FlatFace"
sketch25.AttachmentOffset = App.Placement(Vector(0, 0, 19), App.Rotation())
add_polygon(sketch25, [(83, 24), (83, 14), (93, 14), (93, 24)])  # lines 0-3
sketch25.addConstraint(Sketcher.Constraint("Vertical", 0))
sketch25.addConstraint(Sketcher.Constraint("Horizontal", 1))
sketch25.addConstraint(Sketcher.Constraint("Vertical", 2))
sketch25.addConstraint(Sketcher.Constraint("Horizontal", 3))
sketch25.addConstraint(Sketcher.Constraint("DistanceY", 0, 2, 0, 1, 10.0))
sketch25.addConstraint(Sketcher.Constraint("DistanceX", 1, 1, 1, 2, 10.4))
sketch25.addConstraint(Sketcher.Constraint("DistanceX", -1, 1, 0, 2, 83.0))
sketch25.addConstraint(Sketcher.Constraint("DistanceY", -1, 1, 0, 2, 14.2))
pad25 = body25.newObject("PartDesign::Pad", "Pad024")
pad25.Profile = sketch25
pad25.Length = 2
body26 = doc.addObject("PartDesign::Body", "Body025")

# Sketch on XY plane
sketch26 = body26.newObject("Sketcher::SketchObject", "Sketch025")
sketch26.AttachmentSupport = (doc.getObject("XY_Plane025"), [""])
sketch26.MapMode = "FlatFace"
sketch26.AttachmentOffset = App.Placement(Vector(0, 0, 7), App.Rotation())
add_polygon(sketch26, [(13, 47), (13, 37), (25, 37), (25, 47)])  # lines 0-3
sketch26.addConstraint(Sketcher.Constraint("Vertical", 0))
sketch26.addConstraint(Sketcher.Constraint("Horizontal", 1))
sketch26.addConstraint(Sketcher.Constraint("Vertical", 2))
sketch26.addConstraint(Sketcher.Constraint("Horizontal", 3))
sketch26.addConstraint(Sketcher.Constraint("DistanceX", 1, 1, 1, 2, 12.0))
sketch26.addConstraint(Sketcher.Constraint("DistanceY", 0, 2, 0, 1, 10.0))
sketch26.addConstraint(Sketcher.Constraint("DistanceX", -1, 1, 0, 2, 13.4))
sketch26.addConstraint(Sketcher.Constraint("DistanceY", -1, 1, 0, 2, 37.2))
pad26 = body26.newObject("PartDesign::Pad", "Pad025")
pad26.Profile = sketch26
pad26.Length = 8
doc.recompute()

fillet9 = body26.newObject("PartDesign::Fillet", "Fillet008")
fillet9.Base = (pad26, edges_at(pad26, [
    (13.4, 42.2, 15),
    (13.4, 42.2, 7),
    (25.4, 42.2, 15),
    (25.4, 42.2, 7),
]))
fillet9.Radius = 1
body27 = doc.addObject("PartDesign::Body", "Body026")
body27.AllowCompound = True
doc.recompute()

body26.Placement = App.Placement(Vector(50, 0, 2.5), App.Rotation(Vector(0, 0, 1), 0))
boolean20 = body27.newObject("PartDesign::Boolean", "Boolean019")
boolean20.Type = "Fuse"
boolean20.addObjects([body26])
doc.recompute()

boolean21 = body27.newObject("PartDesign::Boolean", "Boolean020")
boolean21.Type = "Fuse"
boolean21.addObjects([body23])
doc.recompute()

boolean22 = body27.newObject("PartDesign::Boolean", "Boolean021")
boolean22.Type = "Fuse"
boolean22.addObjects([body24])
doc.recompute()

boolean23 = body27.newObject("PartDesign::Boolean", "Boolean022")
boolean23.Type = "Fuse"
boolean23.addObjects([body25])
body28 = doc.addObject("PartDesign::Body", "Body027")

# Sketch on XY plane
sketch27 = body28.newObject("Sketcher::SketchObject", "Sketch026")
sketch27.AttachmentSupport = (doc.getObject("XY_Plane027"), [""])
sketch27.MapMode = "FlatFace"
sketch27.AttachmentOffset = App.Placement(Vector(0, 0, 1.6), App.Rotation())
add_polygon(sketch27, [(50, 39), (50, 0), (89, 0), (89, 39)])  # lines 0-3
sketch27.addConstraint(Sketcher.Constraint("Vertical", 0))
sketch27.addConstraint(Sketcher.Constraint("Horizontal", 1))
sketch27.addConstraint(Sketcher.Constraint("Vertical", 2))
sketch27.addConstraint(Sketcher.Constraint("Horizontal", 3))
sketch27.addConstraint(Sketcher.Constraint("PointOnObject", 0, 2, -1))
sketch27.addConstraint(Sketcher.Constraint("Equal", 3, 0))
sketch27.addConstraint(Sketcher.Constraint("DistanceX", 1, 1, 1, 2, 38.8))
sketch27.addConstraint(Sketcher.Constraint("DistanceX", -1, 1, 0, 2, 50.0))
pad27 = body28.newObject("PartDesign::Pad", "Pad026")
pad27.Profile = sketch27
pad27.Length = 21
body29 = doc.addObject("PartDesign::Body", "Body028")

# Sketch on XY plane
sketch28 = body29.newObject("Sketcher::SketchObject", "Sketch027")
sketch28.AttachmentSupport = (doc.getObject("XY_Plane028"), [""])
sketch28.MapMode = "FlatFace"
add_polygon(sketch28, [(48, 40), (48, -2), (90, -2), (90, 40)])  # lines 0-3
sketch28.addConstraint(Sketcher.Constraint("Vertical", 0))
sketch28.addConstraint(Sketcher.Constraint("Horizontal", 1))
sketch28.addConstraint(Sketcher.Constraint("Vertical", 2))
sketch28.addConstraint(Sketcher.Constraint("Horizontal", 3))
sketch28.addConstraint(Sketcher.Constraint("Equal", 3, 0))
sketch28.addConstraint(Sketcher.Constraint("DistanceX", 1, 1, 1, 2, 42.0))
sketch28.addConstraint(Sketcher.Constraint("DistanceX", -1, 1, 0, 2, 48.4))
sketch28.addConstraint(Sketcher.Constraint("DistanceY", 0, 2, -1, 1, 1.6))
pad28 = body29.newObject("PartDesign::Pad", "Pad027")
pad28.Profile = sketch28
pad28.Length = 22.6
doc.recompute()

boolean24 = body29.newObject("PartDesign::Boolean", "Boolean023")
boolean24.Type = "Cut"
boolean24.addObjects([body28])
doc.recompute()

fillet10 = body29.newObject("PartDesign::Fillet", "Fillet009")
fillet10.Base = (boolean24, edges_at(boolean24, [
    (50, 0, 12.1),
    (50, 38.8, 12.1),
    (88.8, 0, 12.1),
    (88.8, 38.8, 12.1),
]))
fillet10.Radius = 4.14
doc.recompute()

fillet11 = body29.newObject("PartDesign::Fillet", "Fillet010")
fillet11.Base = (fillet10, edges_at(fillet10, [
    (48.4, -1.6, 11.3),
    (48.4, 40.4, 11.3),
    (90.4, 40.4, 11.3),
    (90.4, -1.6, 11.3),
]))
fillet11.Radius = 5.74
doc.recompute()

boolean25 = body29.newObject("PartDesign::Boolean", "Boolean024")
boolean25.Type = "Cut"
boolean25.addObjects([body27])

doc.recompute()
